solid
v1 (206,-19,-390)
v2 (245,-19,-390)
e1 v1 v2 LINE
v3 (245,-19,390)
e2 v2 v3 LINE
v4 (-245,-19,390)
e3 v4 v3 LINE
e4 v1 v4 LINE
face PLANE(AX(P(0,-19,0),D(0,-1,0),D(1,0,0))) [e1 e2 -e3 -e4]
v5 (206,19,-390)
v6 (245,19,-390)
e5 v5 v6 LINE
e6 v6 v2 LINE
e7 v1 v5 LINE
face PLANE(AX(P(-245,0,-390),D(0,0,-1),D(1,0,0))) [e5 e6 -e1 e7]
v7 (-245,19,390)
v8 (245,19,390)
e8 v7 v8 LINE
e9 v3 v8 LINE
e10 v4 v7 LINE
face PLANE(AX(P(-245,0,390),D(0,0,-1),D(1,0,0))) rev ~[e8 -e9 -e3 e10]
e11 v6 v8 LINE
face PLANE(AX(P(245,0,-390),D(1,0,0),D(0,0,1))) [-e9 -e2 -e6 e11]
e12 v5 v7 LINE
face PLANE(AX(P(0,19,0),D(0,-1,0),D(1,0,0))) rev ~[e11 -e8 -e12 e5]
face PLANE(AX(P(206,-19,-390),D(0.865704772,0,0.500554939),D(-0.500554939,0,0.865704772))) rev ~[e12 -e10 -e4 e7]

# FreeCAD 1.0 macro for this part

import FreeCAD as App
import Part
import Sketcher
Q = App.Units.Quantity

doc = App.newDocument("Part")
params = doc.addObject("Spreadsheet::Sheet", "Params")
for row, (alias, value) in enumerate([
    ("sketch1_width", "490 mm"),
    ("sketch1_height", "780 mm"),
    ("pad1_length", "38 mm"),
    ("sketch2_width", "451 mm"),
    ("sketch2_height", "780 mm"),
], start=1):
    params.set(f"A{row}", alias)
    params.set(f"B{row}", "=" + value)
    params.setAlias(f"B{row}", alias)

body = doc.addObject("PartDesign::Body", "Body")

# Sketch on XZ plane
sketch1 = body.newObject("Sketcher::SketchObject", "Sketch")
sketch1.AttachmentSupport = (doc.getObject("XZ_Plane"), [""])
sketch1.MapMode = "FlatFace"
sketch1.addGeometry([
    Part.LineSegment(App.Vector(-245, 390, 0), App.Vector(-245, -390, 0)),
    Part.LineSegment(App.Vector(-245, -390, 0), App.Vector(245, -390, 0)),
    Part.LineSegment(App.Vector(245, -390, 0), App.Vector(245, 390, 0)),
    Part.LineSegment(App.Vector(245, 390, 0), App.Vector(-245, 390, 0)),
], False)
sketch1.addConstraint([
    Sketcher.Constraint("Coincident", 0, 2, 1, 1),
    Sketcher.Constraint("Coincident", 1, 2, 2, 1),
    Sketcher.Constraint("Coincident", 2, 2, 3, 1),
    Sketcher.Constraint("Coincident", 3, 2, 0, 1),
    Sketcher.Constraint("Vertical", 0),
    Sketcher.Constraint("Horizontal", 1),
    Sketcher.Constraint("Vertical", 2),
    Sketcher.Constraint("Horizontal", 3),
    Sketcher.Constraint("Symmetric", 0, 2, 2, 2, -1, 1),
    Sketcher.Constraint("DistanceX", 1, 1, 1, 2, Q("490 mm")),
    Sketcher.Constraint("DistanceY", 0, 2, 0, 1, Q("780 mm")),
])
sketch1.setExpression("Constraints[9]", "Params.sketch1_width")
sketch1.setExpression("Constraints[10]", "Params.sketch1_height")
pad1 = body.newObject("PartDesign::Pad", "Pad")
pad1.Profile = sketch1
pad1.setExpression("Length", "Params.pad1_length")
pad1.Midplane = True

# Sketch on XZ plane
sketch2 = body.newObject("Sketcher::SketchObject", "Sketch001")
sketch2.AttachmentSupport = (doc.getObject("XZ_Plane"), [""])
sketch2.MapMode = "FlatFace"
sketch2.AttachmentOffset = App.Placement(App.Vector(0, 0, 19), App.Rotation())
sketch2.addGeometry([
    Part.LineSegment(App.Vector(206, -390, 0), App.Vector(-245, 390, 0)),
    Part.LineSegment(App.Vector(-245, 390, 0), App.Vector(-245, -390, 0)),
    Part.LineSegment(App.Vector(-245, -390, 0), App.Vector(206, -390, 0)),
], False)
sketch2.addConstraint([
    Sketcher.Constraint("Coincident", 0, 2, 1, 1),
    Sketcher.Constraint("Coincident", 1, 2, 2, 1),
    Sketcher.Constraint("Coincident", 2, 2, 0, 1),
    Sketcher.Constraint("Vertical", 1),
    Sketcher.Constraint("Horizontal", 2),
    Sketcher.Constraint("DistanceX", 2, 1, 2, 2, Q("451 mm")),
    Sketcher.Constraint("DistanceY", 1, 2, 1, 1, Q("780 mm")),
    Sketcher.Constraint("DistanceX", 0, 2, -1, 1, Q("245 mm")),
    Sketcher.Constraint("DistanceY", -1, 1, 0, 2, Q("390 mm")),
])
sketch2.setExpression("Constraints[5]", "Params.sketch2_width")
sketch2.setExpression("Constraints[6]", "Params.sketch2_height")
pocket1 = body.newObject("PartDesign::Pocket", "Pocket")
pocket1.Profile = sketch2
pocket1.Type = "ThroughAll"

doc.recompute()
